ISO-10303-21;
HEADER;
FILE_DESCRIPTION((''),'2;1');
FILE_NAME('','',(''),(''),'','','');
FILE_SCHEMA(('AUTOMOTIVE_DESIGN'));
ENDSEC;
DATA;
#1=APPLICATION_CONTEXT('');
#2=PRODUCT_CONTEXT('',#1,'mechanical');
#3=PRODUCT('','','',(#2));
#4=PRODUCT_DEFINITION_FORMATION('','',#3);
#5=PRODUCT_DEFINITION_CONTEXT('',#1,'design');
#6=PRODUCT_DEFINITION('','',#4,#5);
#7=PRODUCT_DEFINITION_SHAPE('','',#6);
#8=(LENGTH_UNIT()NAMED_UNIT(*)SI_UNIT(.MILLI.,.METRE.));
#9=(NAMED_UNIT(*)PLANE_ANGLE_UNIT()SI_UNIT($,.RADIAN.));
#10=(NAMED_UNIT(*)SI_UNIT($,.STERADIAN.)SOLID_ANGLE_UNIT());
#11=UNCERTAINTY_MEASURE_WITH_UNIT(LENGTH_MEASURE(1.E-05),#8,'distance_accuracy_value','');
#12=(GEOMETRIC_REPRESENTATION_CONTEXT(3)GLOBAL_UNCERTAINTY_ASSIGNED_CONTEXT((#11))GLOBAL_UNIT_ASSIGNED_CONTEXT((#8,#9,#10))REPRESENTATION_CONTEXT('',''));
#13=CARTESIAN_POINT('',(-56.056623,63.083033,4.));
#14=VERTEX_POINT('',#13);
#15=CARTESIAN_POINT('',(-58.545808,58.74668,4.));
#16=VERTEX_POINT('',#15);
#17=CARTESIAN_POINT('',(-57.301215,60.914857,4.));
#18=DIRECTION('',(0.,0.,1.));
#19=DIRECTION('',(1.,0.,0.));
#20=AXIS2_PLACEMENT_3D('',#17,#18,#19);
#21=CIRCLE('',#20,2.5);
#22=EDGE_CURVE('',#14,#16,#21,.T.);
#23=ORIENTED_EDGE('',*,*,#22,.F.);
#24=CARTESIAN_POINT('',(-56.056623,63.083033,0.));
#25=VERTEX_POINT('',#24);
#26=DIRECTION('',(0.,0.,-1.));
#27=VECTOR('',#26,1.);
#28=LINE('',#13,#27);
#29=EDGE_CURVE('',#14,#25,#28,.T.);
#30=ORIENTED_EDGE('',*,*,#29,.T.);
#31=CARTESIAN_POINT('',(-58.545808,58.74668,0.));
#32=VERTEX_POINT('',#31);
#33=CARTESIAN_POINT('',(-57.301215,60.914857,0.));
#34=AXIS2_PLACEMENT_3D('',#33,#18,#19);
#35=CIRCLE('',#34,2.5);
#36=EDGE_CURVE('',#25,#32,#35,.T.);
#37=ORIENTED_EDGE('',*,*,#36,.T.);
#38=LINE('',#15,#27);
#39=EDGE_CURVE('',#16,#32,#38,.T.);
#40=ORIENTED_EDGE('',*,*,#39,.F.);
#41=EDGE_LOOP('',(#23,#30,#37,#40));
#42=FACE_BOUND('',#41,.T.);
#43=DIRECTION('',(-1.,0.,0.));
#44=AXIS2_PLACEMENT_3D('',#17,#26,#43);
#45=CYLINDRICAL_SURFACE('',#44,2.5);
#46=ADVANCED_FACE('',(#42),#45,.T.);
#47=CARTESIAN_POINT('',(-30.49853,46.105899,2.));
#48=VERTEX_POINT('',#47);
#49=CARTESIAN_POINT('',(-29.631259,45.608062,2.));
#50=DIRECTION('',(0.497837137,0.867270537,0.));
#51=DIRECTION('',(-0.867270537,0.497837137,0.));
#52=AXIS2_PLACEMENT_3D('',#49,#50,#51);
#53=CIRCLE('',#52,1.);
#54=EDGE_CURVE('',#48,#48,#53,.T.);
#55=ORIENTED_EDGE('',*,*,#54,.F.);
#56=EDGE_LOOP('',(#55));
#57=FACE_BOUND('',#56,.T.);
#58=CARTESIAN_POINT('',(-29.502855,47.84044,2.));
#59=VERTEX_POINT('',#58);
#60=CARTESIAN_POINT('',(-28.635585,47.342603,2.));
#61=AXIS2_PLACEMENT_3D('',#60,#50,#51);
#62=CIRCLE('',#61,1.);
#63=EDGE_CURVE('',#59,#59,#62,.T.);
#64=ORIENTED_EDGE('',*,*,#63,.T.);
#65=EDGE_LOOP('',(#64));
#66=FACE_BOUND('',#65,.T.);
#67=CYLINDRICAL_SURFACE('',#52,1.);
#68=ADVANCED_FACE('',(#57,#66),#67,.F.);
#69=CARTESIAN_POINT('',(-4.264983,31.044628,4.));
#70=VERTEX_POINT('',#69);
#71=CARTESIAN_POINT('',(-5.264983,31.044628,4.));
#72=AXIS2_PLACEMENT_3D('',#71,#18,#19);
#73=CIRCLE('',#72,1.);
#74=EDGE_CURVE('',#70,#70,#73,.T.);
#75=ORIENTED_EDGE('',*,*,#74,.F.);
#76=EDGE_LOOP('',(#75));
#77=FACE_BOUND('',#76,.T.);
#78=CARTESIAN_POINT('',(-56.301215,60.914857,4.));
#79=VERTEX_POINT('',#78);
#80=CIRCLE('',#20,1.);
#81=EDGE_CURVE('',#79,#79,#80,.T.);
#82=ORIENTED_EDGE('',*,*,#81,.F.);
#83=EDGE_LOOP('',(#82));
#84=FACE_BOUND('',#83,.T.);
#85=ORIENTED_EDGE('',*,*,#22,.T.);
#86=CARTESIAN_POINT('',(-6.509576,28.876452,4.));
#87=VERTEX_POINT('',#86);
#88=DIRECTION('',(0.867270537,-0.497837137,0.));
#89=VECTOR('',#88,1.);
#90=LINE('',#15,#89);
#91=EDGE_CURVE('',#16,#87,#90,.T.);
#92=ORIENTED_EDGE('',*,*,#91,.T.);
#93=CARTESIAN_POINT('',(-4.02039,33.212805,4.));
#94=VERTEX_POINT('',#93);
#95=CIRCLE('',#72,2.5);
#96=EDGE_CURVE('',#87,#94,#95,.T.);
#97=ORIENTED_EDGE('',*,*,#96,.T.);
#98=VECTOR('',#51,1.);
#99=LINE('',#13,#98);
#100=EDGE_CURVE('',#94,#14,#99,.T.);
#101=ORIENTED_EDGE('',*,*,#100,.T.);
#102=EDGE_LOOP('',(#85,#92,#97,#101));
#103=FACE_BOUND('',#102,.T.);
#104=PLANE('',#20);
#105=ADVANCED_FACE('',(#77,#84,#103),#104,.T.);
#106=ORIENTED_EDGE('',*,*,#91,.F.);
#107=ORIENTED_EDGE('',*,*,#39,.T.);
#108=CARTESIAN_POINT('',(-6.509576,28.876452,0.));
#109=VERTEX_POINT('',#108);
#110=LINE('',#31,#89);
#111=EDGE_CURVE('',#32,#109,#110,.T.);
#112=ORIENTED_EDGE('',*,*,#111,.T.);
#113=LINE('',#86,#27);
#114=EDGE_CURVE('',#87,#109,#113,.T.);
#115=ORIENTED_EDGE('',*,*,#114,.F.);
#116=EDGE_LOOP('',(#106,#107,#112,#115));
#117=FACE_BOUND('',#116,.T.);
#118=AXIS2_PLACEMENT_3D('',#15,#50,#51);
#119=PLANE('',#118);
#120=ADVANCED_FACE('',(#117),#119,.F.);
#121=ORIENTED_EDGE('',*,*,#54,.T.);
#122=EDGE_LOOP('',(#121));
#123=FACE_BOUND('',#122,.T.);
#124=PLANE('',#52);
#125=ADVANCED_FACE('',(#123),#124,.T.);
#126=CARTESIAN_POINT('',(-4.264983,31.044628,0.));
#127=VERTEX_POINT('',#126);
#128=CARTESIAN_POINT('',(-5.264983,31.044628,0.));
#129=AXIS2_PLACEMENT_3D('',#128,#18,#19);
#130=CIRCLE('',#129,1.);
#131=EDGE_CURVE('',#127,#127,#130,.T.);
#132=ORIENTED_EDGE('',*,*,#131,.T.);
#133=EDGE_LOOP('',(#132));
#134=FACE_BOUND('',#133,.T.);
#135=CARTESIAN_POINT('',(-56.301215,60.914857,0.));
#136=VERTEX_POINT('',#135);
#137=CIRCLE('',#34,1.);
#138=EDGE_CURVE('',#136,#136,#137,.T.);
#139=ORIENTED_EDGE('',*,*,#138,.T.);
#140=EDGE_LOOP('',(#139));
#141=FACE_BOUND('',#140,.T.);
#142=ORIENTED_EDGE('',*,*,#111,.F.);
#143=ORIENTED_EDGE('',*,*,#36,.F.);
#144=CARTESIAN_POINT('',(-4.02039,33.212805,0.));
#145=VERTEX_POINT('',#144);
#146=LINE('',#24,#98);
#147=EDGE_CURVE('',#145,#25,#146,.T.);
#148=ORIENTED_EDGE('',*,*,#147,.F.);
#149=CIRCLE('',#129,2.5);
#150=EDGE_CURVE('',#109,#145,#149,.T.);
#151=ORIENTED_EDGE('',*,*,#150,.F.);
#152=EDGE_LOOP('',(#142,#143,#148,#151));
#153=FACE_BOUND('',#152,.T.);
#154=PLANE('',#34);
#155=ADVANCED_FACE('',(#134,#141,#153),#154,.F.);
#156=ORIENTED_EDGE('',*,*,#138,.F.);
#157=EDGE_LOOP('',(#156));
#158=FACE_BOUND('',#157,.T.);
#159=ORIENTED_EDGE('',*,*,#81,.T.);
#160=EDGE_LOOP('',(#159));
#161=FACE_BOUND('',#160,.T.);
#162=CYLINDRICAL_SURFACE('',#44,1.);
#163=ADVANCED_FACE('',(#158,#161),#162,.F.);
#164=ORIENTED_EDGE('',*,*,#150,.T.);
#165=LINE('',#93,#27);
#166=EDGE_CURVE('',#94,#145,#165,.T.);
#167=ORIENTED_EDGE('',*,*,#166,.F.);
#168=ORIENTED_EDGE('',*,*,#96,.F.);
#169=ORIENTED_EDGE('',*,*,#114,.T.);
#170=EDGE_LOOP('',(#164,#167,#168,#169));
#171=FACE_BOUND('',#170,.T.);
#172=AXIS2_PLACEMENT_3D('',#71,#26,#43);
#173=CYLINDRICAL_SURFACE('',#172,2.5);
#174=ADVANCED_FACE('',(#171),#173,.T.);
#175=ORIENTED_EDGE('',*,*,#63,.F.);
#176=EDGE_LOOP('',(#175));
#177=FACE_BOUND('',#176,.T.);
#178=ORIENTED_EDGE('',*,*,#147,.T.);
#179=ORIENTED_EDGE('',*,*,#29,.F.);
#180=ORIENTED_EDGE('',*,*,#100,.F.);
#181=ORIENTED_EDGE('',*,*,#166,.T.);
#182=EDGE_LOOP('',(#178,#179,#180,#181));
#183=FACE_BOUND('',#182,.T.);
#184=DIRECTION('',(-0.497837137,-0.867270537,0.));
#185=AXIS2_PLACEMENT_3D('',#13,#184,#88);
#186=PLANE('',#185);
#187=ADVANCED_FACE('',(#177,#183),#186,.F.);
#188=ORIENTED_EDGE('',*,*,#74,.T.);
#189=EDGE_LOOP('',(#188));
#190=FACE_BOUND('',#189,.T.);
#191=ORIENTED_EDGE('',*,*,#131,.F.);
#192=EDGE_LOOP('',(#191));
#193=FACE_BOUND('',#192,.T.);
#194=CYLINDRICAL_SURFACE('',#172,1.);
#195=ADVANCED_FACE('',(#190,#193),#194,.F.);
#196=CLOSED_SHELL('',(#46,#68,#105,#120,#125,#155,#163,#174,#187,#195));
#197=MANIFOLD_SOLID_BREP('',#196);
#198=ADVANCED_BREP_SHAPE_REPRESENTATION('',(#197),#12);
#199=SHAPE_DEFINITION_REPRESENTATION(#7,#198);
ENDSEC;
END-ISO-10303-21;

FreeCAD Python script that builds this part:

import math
import FreeCAD as App
import Part
import Sketcher

V = App.Vector

doc = App.newDocument("Part")
body = doc.addObject("PartDesign::Body", "Body")

# Sketch on XY plane
sketch1 = body.newObject("Sketcher::SketchObject", "Sketch")
sketch1.AttachmentSupport = (doc.getObject("XY_Plane"), [""])
sketch1.MapMode = "FlatFace"
sketch1.addGeometry([
    Part.LineSegment(V(-4.02039, 33.212805, 0), V(-56.056623, 63.083033, 0)),  # 0
    Part.ArcOfCircle(Part.Circle(V(-57.301215, 60.914857, 0), V(0, 0, 1), 2.5), math.radians(60.142991), math.radians(240.142991)),  # 1
    Part.LineSegment(V(-58.545808, 58.74668, 0), V(-6.509576, 28.876452, 0)),  # 2
    Part.ArcOfCircle(Part.Circle(V(-5.264983, 31.044628, 0), V(0, 0, 1), 2.5), math.radians(-119.857009), math.radians(60.142991)),  # 3
    Part.Circle(V(-5.264983, 31.044628, 0), V(0, 0, 1), 1),  # 4
    Part.Circle(V(-57.301215, 60.914857, 0), V(0, 0, 1), 1),  # 5
], False)
sketch1.addConstraint([
    Sketcher.Constraint("Tangent", 0, 2, 1, 1),
    Sketcher.Constraint("Tangent", 1, 2, 2, 1),
    Sketcher.Constraint("Tangent", 2, 2, 3, 1),
    Sketcher.Constraint("Tangent", 3, 2, 0, 1),
    Sketcher.Constraint("Coincident", 4, 3, 3, 3),
    Sketcher.Constraint("Coincident", 5, 3, 1, 3),
    Sketcher.Constraint("Equal", 1, 3),
    Sketcher.Constraint("Equal", 4, 5),
    Sketcher.Constraint("Diameter", 4, 2.0),
    Sketcher.Constraint("Radius", 1, 2.5),
    Sketcher.Constraint("Distance", 0, 60.0),
    Sketcher.Constraint("DistanceY", -1, 1, 3, 3, 31.044628),
    Sketcher.Constraint("DistanceX", 1, 2, -1, 1, 58.545808),
    Sketcher.Constraint("DistanceY", -1, 1, 1, 2, 58.74668),
])
pad1 = body.newObject("PartDesign::Pad", "Pad")
pad1.Profile = sketch1
pad1.Length = 4

# Sketch on an angled plane
sketch2 = body.newObject("Sketcher::SketchObject", "Sketch001")
sketch2.Placement = App.Placement(V(13.343522, 23.245441, 0), App.Rotation(V(0.867270537, -0.497837137, 0), V(0, 0, -0.999999999), V(0.497837137, 0.867270537, 0), "ZXY"))
sketch2.addGeometry(Part.Circle(V(-48.403705, -2, 0), V(0, 0, 1), 1), False)
sketch2.addConstraint([
    Sketcher.Constraint("Diameter", 0, 2.0),
    Sketcher.Constraint("DistanceY", 0, 3, -1, 1, 2.0),
    Sketcher.Constraint("DistanceX", 0, 3, -1, 1, 48.403705),
])
pocket1 = body.newObject("PartDesign::Pocket", "Pocket")
pocket1.Profile = sketch2
pocket1.Length = 2

doc.recompute()
